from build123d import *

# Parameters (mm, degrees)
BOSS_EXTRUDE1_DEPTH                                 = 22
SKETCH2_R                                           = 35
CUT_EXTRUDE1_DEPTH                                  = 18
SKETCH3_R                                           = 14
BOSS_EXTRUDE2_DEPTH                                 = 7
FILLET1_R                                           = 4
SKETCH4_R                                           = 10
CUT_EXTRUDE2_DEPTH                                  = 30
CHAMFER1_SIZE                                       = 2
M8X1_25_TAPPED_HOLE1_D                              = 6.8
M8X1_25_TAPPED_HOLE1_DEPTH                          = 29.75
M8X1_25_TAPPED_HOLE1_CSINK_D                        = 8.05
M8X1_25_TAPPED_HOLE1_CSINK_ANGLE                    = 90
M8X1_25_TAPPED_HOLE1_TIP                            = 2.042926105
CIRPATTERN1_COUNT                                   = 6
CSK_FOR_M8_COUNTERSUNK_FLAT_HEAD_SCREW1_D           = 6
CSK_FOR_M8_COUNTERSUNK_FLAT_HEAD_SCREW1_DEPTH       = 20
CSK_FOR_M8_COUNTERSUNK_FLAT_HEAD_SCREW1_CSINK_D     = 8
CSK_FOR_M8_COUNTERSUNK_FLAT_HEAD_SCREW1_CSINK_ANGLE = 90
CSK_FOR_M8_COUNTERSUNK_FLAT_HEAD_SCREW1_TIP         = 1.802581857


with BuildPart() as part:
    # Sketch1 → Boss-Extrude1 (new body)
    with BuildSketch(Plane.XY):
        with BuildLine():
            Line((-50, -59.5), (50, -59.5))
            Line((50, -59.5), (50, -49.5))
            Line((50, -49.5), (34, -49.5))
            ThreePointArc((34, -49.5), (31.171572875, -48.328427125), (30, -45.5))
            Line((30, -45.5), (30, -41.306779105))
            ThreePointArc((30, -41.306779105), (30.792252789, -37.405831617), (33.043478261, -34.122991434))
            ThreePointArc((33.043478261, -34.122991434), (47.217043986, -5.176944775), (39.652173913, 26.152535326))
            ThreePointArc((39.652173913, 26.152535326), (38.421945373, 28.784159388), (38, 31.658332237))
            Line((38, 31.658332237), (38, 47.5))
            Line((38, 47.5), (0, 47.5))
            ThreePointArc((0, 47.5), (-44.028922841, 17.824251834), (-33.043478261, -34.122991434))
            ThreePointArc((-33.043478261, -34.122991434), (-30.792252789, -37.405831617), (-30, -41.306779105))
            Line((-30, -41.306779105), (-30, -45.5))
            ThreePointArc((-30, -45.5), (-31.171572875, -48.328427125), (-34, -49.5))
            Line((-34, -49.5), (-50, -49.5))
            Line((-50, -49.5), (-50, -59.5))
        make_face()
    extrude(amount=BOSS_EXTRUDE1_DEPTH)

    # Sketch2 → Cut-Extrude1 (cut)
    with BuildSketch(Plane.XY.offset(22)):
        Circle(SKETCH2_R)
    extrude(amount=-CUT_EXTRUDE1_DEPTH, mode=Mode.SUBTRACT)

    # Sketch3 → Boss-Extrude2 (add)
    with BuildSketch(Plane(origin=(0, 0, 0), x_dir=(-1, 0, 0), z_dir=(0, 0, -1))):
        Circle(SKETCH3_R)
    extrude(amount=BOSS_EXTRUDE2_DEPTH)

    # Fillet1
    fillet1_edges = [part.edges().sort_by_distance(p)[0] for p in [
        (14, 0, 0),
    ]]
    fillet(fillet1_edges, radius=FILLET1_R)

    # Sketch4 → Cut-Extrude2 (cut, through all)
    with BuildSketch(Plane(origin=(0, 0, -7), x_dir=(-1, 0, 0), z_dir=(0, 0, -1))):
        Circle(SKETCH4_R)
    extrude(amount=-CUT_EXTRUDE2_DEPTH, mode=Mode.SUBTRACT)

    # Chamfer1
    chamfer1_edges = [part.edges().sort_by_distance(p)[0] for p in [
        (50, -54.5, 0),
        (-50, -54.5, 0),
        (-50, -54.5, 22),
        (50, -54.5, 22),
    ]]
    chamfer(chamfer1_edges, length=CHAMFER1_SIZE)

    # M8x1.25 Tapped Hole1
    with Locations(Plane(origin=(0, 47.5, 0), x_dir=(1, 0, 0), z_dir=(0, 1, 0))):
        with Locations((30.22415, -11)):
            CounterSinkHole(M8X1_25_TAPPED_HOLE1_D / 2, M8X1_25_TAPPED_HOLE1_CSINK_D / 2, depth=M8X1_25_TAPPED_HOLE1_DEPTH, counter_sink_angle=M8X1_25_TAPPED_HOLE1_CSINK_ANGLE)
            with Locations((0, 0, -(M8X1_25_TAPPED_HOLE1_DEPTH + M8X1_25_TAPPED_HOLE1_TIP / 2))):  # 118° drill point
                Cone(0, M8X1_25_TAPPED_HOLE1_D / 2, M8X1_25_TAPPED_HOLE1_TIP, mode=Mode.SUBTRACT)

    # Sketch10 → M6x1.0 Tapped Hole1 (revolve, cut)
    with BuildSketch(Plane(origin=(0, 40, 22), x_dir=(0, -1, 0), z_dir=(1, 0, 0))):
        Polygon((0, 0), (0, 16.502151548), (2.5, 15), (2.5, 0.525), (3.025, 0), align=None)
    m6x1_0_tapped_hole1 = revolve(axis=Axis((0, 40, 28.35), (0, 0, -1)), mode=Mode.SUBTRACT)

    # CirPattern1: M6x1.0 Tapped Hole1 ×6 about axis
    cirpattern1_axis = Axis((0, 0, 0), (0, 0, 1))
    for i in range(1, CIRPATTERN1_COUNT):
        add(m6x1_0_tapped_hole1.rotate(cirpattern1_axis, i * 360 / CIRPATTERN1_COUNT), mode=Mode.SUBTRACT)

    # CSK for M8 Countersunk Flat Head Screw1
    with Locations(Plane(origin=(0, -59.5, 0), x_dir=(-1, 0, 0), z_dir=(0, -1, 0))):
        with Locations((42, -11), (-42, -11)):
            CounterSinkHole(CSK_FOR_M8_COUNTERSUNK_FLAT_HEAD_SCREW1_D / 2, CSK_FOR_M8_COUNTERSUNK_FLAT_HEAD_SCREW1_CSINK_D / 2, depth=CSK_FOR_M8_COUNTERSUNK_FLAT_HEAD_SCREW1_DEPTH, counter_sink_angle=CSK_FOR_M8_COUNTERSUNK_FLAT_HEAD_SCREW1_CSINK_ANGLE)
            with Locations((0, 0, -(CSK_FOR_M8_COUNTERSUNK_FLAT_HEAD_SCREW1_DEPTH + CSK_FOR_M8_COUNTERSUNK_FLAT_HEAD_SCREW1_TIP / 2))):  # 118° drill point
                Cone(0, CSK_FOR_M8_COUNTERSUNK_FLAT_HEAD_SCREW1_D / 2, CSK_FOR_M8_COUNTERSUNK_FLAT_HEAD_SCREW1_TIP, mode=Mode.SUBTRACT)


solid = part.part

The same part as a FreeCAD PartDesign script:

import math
import FreeCAD as App
import Part
import Sketcher
Q = App.Units.Quantity


def edges_at(feature, points):
    """Names of the edges that pass closest to the given points."""
    edges = feature.Shape.Edges
    near = lambda p: min(range(len(edges)), key=lambda i: edges[i].distToShape(Part.Vertex(*p))[0])
    return sorted({f"Edge{near(p) + 1}" for p in points})


def add_polygon(sketch, points):
    """Adds a closed chain of lines whose ends are joined by coincident constraints."""
    first, n = sketch.GeometryCount, len(points)
    for a, b in zip(points, points[1:] + points[:1]):
        sketch.addGeometry(Part.LineSegment(App.Vector(*a, 0), App.Vector(*b, 0)), False)
    for i in range(n):
        sketch.addConstraint(Sketcher.Constraint("Coincident", first + i, 2, first + (i + 1) % n, 1))

doc = App.newDocument("Part")
body = doc.addObject("PartDesign::Body", "Body")

# Sketch on XY plane
sketch1 = body.newObject("Sketcher::SketchObject", "Sketch")
sketch1.AttachmentSupport = (doc.getObject("XY_Plane"), [""])
sketch1.MapMode = "FlatFace"
sketch1.addGeometry([
    Part.LineSegment(App.Vector(-50, -59.5, 0), App.Vector(50, -59.5, 0)),  # 0
    Part.LineSegment(App.Vector(50, -59.5, 0), App.Vector(50, -49.5, 0)),  # 1
    Part.LineSegment(App.Vector(50, -49.5, 0), App.Vector(34, -49.5, 0)),  # 2
    Part.ArcOfCircle(Part.Circle(App.Vector(34, -45.5, 0), App.Vector(0, 0, 1), 4), math.radians(180), math.radians(270)),  # 3
    Part.LineSegment(App.Vector(30, -45.5, 0), App.Vector(30, -41.306779, 0)),  # 4
    Part.ArcOfCircle(Part.Circle(App.Vector(40, -41.306779, 0), App.Vector(0, 0, 1), 10), math.radians(134.07921), math.radians(180)),  # 5
    Part.ArcOfCircle(Part.Circle(App.Vector(0, 0, 0), App.Vector(0, 0, 1), 47.5), math.radians(-45.92079), math.radians(33.406791)),  # 6
    Part.ArcOfCircle(Part.Circle(App.Vector(48, 31.658332, 0), App.Vector(0, 0, 1), 10), math.radians(180), math.radians(213.406791)),  # 7
    Part.LineSegment(App.Vector(38, 31.658332, 0), App.Vector(38, 47.5, 0)),  # 8
    Part.LineSegment(App.Vector(38, 47.5, 0), App.Vector(0, 47.5, 0)),  # 9
    Part.ArcOfCircle(Part.Circle(App.Vector(0, 0, 0), App.Vector(0, 0, 1), 47.5), math.radians(90), math.radians(225.92079)),  # 10
    Part.ArcOfCircle(Part.Circle(App.Vector(-40, -41.306779, 0), App.Vector(0, 0, 1), 10), math.radians(0), math.radians(45.92079)),  # 11
    Part.LineSegment(App.Vector(-30, -41.306779, 0), App.Vector(-30, -45.5, 0)),  # 12
    Part.ArcOfCircle(Part.Circle(App.Vector(-34, -45.5, 0), App.Vector(0, 0, 1), 4), math.radians(-90), math.radians(0)),  # 13
    Part.LineSegment(App.Vector(-34, -49.5, 0), App.Vector(-50, -49.5, 0)),  # 14
    Part.LineSegment(App.Vector(-50, -49.5, 0), App.Vector(-50, -59.5, 0)),  # 15
], False)
sketch1.addConstraint([
    Sketcher.Constraint("Coincident", 0, 2, 1, 1),
    Sketcher.Constraint("Coincident", 1, 2, 2, 1),
    Sketcher.Constraint("Tangent", 2, 2, 3, 2),
    Sketcher.Constraint("Tangent", 3, 1, 4, 1),
    Sketcher.Constraint("Tangent", 4, 2, 5, 2),
    Sketcher.Constraint("Tangent", 5, 1, 6, 1),
    Sketcher.Constraint("Tangent", 6, 2, 7, 2),
    Sketcher.Constraint("Tangent", 7, 1, 8, 1),
    Sketcher.Constraint("Coincident", 8, 2, 9, 1),
    Sketcher.Constraint("Tangent", 9, 2, 10, 1),
    Sketcher.Constraint("Tangent", 10, 2, 11, 2),
    Sketcher.Constraint("Tangent", 11, 1, 12, 1),
    Sketcher.Constraint("Tangent", 12, 2, 13, 2),
    Sketcher.Constraint("Tangent", 13, 1, 14, 1),
    Sketcher.Constraint("Coincident", 14, 2, 15, 1),
    Sketcher.Constraint("Coincident", 15, 2, 0, 1),
    Sketcher.Constraint("Horizontal", 0),
    Sketcher.Constraint("Vertical", 1),
    Sketcher.Constraint("Horizontal", 2),
    Sketcher.Constraint("Vertical", 4),
    Sketcher.Constraint("Vertical", 8),
    Sketcher.Constraint("Horizontal", 9),
    Sketcher.Constraint("Vertical", 12),
    Sketcher.Constraint("Horizontal", 14),
    Sketcher.Constraint("Vertical", 15),
    Sketcher.Constraint("Coincident", 6, 3, -1, 1),
    Sketcher.Constraint("Coincident", 10, 3, -1, 1),
    Sketcher.Constraint("Equal", 5, 7),
    Sketcher.Constraint("Equal", 6, 10),
    Sketcher.Constraint("Equal", 7, 11),
    Sketcher.Constraint("Equal", 3, 13),
    Sketcher.Constraint("Symmetric", 3, 3, 13, 3, -2),
    Sketcher.Constraint("Equal", 2, 14),
    Sketcher.Constraint("Radius", 3, 4.0),
    Sketcher.Constraint("Radius", 5, 10.0),
    Sketcher.Constraint("Radius", 6, 47.5),
    Sketcher.Constraint("DistanceX", 0, 1, 0, 2, 100.0),
    Sketcher.Constraint("DistanceX", 2, 2, 2, 1, 16.0),
    Sketcher.Constraint("DistanceX", 9, 2, 9, 1, 38.0),
    Sketcher.Constraint("DistanceY", 1, 1, 1, 2, 10.0),
    Sketcher.Constraint("DistanceY", 3, 3, -1, 1, 45.5),
])
pad1 = body.newObject("PartDesign::Pad", "Pad")
pad1.Profile = sketch1
pad1.Length = 22

# Sketch on XY plane
sketch2 = body.newObject("Sketcher::SketchObject", "Sketch001")
sketch2.AttachmentSupport = (doc.getObject("XY_Plane"), [""])
sketch2.MapMode = "FlatFace"
sketch2.AttachmentOffset = App.Placement(App.Vector(0, 0, 22), App.Rotation())
sketch2.addGeometry(Part.Circle(App.Vector(0, 0, 0), App.Vector(0, 0, 1), 35), False)
sketch2.addConstraint([
    Sketcher.Constraint("Coincident", 0, 3, -1, 1),
    Sketcher.Constraint("Diameter", 0, 70.0),
])
pocket1 = body.newObject("PartDesign::Pocket", "Pocket")
pocket1.Profile = sketch2
pocket1.Length = 18

# Sketch on XY plane
sketch3 = body.newObject("Sketcher::SketchObject", "Sketch002")
sketch3.AttachmentSupport = (doc.getObject("XY_Plane"), [""])
sketch3.MapMode = "FlatFace"
sketch3.addGeometry(Part.Circle(App.Vector(0, 0, 0), App.Vector(0, 0, 1), 14), False)
sketch3.addConstraint([
    Sketcher.Constraint("Coincident", 0, 3, -1, 1),
    Sketcher.Constraint("Diameter", 0, 28.0),
])
pad2 = body.newObject("PartDesign::Pad", "Pad001")
pad2.Profile = sketch3
pad2.Length = 7
pad2.Reversed = True
doc.recompute()

fillet = body.newObject("PartDesign::Fillet", "Fillet")
fillet.Base = (pad2, edges_at(pad2, [(14, 0, 0)]))
fillet.Radius = 4

# Sketch on XY plane
sketch4 = body.newObject("Sketcher::SketchObject", "Sketch003")
sketch4.AttachmentSupport = (doc.getObject("XY_Plane"), [""])
sketch4.MapMode = "FlatFace"
sketch4.AttachmentOffset = App.Placement(App.Vector(0, 0, -7), App.Rotation())
sketch4.addGeometry(Part.Circle(App.Vector(0, 0, 0), App.Vector(0, 0, 1), 10), False)
sketch4.addConstraint([
    Sketcher.Constraint("Coincident", 0, 3, -1, 1),
    Sketcher.Constraint("Diameter", 0, 20.0),
])
pocket2 = body.newObject("PartDesign::Pocket", "Pocket001")
pocket2.Profile = sketch4
pocket2.Type = "ThroughAll"
pocket2.Reversed = True
doc.recompute()

chamfer = body.newObject("PartDesign::Chamfer", "Chamfer")
chamfer.Base = (pocket2, edges_at(pocket2, [
    (50, -54.5, 0),
    (-50, -54.5, 0),
    (-50, -54.5, 22),
    (50, -54.5, 22),
]))
chamfer.Size = 2

# Sketch on XZ plane
sketch5 = body.newObject("Sketcher::SketchObject", "Sketch004")
sketch5.AttachmentSupport = (doc.getObject("XZ_Plane"), [""])
sketch5.MapMode = "FlatFace"
sketch5.AttachmentOffset = App.Placement(App.Vector(0, 0, -47.5), App.Rotation())
sketch5.addGeometry(Part.Circle(App.Vector(30.22415, 11, 0), App.Vector(0, 0, 1), 3.4), False)
sketch5.addConstraint([
    Sketcher.Constraint("Diameter", 0, 6.8),
    Sketcher.Constraint("DistanceY", -1, 1, 0, 3, 11.0),
    Sketcher.Constraint("DistanceX", -1, 1, 0, 3, 30.22415),
])
doc.recompute()
hole = body.newObject("PartDesign::Hole", "Hole")
hole.Profile = sketch5
hole.ThreadType = "None"
hole.Diameter = 6.8
hole.DepthType = "Dimension"
hole.Depth = 29.75
hole.DrillPoint = "Angled"
hole.DrillPointAngle = 118
hole.HoleCutType = "Countersink"
hole.HoleCutDiameter = 8.05
hole.HoleCutCountersinkAngle = 90
hole.Reversed = True

# Sketch on YZ plane
sketch6 = body.newObject("Sketcher::SketchObject", "Sketch005")
sketch6.AttachmentSupport = (doc.getObject("YZ_Plane"), [""])
sketch6.MapMode = "FlatFace"
add_polygon(sketch6, [(40, 5.497848), (40, 22), (36.975, 22), (37.5, 21.475), (37.5, 7)])  # lines 0-4
sketch6.addGeometry(Part.LineSegment(App.Vector(40, 22, 0), App.Vector(40, 5.497848, 0)), True)  # axis
sketch6.addConstraint([
    Sketcher.Constraint("Vertical", 0),
    Sketcher.Constraint("Horizontal", 1),
    Sketcher.Constraint("Vertical", 3),
    Sketcher.Constraint("Vertical", 5),
    Sketcher.Constraint("Coincident", 5, 1, 0, 2),
    Sketcher.Constraint("Equal", 0, 5),
    Sketcher.Constraint("Angle", 2, Q("-45 deg")),
    Sketcher.Constraint("Angle", 4, Q("-31 deg")),
    Sketcher.Constraint("DistanceX", -1, 1, 0, 2, 40.0),
    Sketcher.Constraint("DistanceY", -1, 1, 0, 2, 22.0),
    Sketcher.Constraint("DistanceY", -1, 1, 3, 2, 7.0),
    Sketcher.Constraint("DistanceX", -1, 1, 2, 2, 37.5),
    Sketcher.Constraint("DistanceX", 1, 2, 1, 1, 3.025),
])
groove = body.newObject("PartDesign::Groove", "Groove")
groove.Profile = sketch6
groove.ReferenceAxis = (sketch6, ["Axis0"])
groove.Angle = 360
doc.recompute()

polarpattern = body.newObject("PartDesign::PolarPattern", "PolarPattern")
polarpattern.Originals = [groove]
polarpattern.Axis = (doc.getObject("Z_Axis"), [""])
polarpattern.Angle = 360
polarpattern.Occurrences = 6
body.Tip = polarpattern

# Sketch on XZ plane
sketch7 = body.newObject("Sketcher::SketchObject", "Sketch006")
sketch7.AttachmentSupport = (doc.getObject("XZ_Plane"), [""])
sketch7.MapMode = "FlatFace"
sketch7.AttachmentOffset = App.Placement(App.Vector(0, 0, 59.5), App.Rotation())
sketch7.addGeometry([
    Part.Circle(App.Vector(-42, 11, 0), App.Vector(0, 0, 1), 3),
    Part.Circle(App.Vector(42, 11, 0), App.Vector(0, 0, 1), 3),
], False)
sketch7.addConstraint([
    Sketcher.Constraint("Equal", 0, 1),
    Sketcher.Constraint("Symmetric", 0, 3, 1, 3, -2),
    Sketcher.Constraint("Diameter", 0, 6.0),
    Sketcher.Constraint("DistanceX", 0, 3, -1, 1, 42.0),
    Sketcher.Constraint("DistanceY", -1, 1, 0, 3, 11.0),
])
doc.recompute()
hole2 = body.newObject("PartDesign::Hole", "Hole001")
hole2.Profile = sketch7
hole2.ThreadType = "None"
hole2.Diameter = 6
hole2.DepthType = "Dimension"
hole2.Depth = 20
hole2.DrillPoint = "Angled"
hole2.DrillPointAngle = 118
hole2.HoleCutType = "Countersink"
hole2.HoleCutDiameter = 8
hole2.HoleCutCountersinkAngle = 90

doc.recompute()
